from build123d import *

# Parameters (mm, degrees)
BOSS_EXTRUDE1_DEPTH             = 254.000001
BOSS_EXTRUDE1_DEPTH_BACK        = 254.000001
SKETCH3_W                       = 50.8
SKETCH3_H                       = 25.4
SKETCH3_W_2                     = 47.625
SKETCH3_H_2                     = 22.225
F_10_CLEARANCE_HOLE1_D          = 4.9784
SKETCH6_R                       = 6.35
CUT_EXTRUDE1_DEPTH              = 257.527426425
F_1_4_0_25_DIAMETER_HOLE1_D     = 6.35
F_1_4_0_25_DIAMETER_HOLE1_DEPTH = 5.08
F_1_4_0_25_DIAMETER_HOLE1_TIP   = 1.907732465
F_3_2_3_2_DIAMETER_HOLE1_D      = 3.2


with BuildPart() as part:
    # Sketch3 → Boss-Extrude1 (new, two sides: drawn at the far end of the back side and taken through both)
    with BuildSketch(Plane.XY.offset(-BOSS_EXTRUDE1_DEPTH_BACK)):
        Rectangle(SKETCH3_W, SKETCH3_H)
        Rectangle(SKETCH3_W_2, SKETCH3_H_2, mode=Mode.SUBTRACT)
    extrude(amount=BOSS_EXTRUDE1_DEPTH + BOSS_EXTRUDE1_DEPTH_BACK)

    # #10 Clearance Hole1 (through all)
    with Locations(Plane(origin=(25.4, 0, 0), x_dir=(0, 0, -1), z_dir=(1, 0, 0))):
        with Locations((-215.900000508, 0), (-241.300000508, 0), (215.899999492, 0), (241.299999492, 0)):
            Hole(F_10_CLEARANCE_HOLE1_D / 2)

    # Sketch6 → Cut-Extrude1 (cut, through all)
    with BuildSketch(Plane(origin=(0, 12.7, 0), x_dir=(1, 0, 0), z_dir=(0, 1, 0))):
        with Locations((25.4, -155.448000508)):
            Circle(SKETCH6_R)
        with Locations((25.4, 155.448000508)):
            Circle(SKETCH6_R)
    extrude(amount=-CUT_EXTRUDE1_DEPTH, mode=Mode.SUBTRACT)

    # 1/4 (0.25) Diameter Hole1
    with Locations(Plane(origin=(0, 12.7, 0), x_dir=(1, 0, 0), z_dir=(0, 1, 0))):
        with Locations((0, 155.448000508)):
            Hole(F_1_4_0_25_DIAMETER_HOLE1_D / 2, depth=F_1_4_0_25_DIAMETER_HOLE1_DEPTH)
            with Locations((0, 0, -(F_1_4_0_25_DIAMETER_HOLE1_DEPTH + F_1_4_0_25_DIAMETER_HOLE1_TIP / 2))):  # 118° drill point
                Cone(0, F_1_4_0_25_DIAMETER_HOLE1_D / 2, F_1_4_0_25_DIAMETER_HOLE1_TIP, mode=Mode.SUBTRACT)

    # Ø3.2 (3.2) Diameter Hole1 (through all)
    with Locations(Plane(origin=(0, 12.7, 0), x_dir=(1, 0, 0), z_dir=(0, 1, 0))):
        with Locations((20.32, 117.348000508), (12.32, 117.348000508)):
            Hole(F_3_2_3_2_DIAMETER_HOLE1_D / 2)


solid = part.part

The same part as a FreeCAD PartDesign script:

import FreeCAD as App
import Part
import Sketcher
Q = App.Units.Quantity

doc = App.newDocument("Part")
body = doc.addObject("PartDesign::Body", "Body")

sketch1 = body.newObject("Sketcher::SketchObject", "Sketch")
sketch1.AttachmentSupport = (doc.getObject("XY_Plane"), [""])
sketch1.MapMode = "FlatFace"
sketch1.addGeometry([
    Part.LineSegment(App.Vector(-25, 13, 0), App.Vector(-25, -13, 0)),
    Part.LineSegment(App.Vector(-25, -13, 0), App.Vector(25, -13, 0)),
    Part.LineSegment(App.Vector(25, -13, 0), App.Vector(25, 13, 0)),
    Part.LineSegment(App.Vector(25, 13, 0), App.Vector(-25, 13, 0)),
    Part.LineSegment(App.Vector(24, -11, 0), App.Vector(-24, -11, 0)),
    Part.LineSegment(App.Vector(-24, -11, 0), App.Vector(-24, 11, 0)),
    Part.LineSegment(App.Vector(-24, 11, 0), App.Vector(24, 11, 0)),
    Part.LineSegment(App.Vector(24, 11, 0), App.Vector(24, -11, 0)),
], False)
sketch1.addConstraint([
    Sketcher.Constraint("Coincident", 0, 2, 1, 1),
    Sketcher.Constraint("Coincident", 1, 2, 2, 1),
    Sketcher.Constraint("Coincident", 2, 2, 3, 1),
    Sketcher.Constraint("Coincident", 3, 2, 0, 1),
    Sketcher.Constraint("Coincident", 4, 2, 5, 1),
    Sketcher.Constraint("Coincident", 5, 2, 6, 1),
    Sketcher.Constraint("Coincident", 6, 2, 7, 1),
    Sketcher.Constraint("Coincident", 7, 2, 4, 1),
    Sketcher.Constraint("Vertical", 0),
    Sketcher.Constraint("Horizontal", 1),
    Sketcher.Constraint("Vertical", 2),
    Sketcher.Constraint("Horizontal", 3),
    Sketcher.Constraint("Horizontal", 4),
    Sketcher.Constraint("Vertical", 5),
    Sketcher.Constraint("Horizontal", 6),
    Sketcher.Constraint("Vertical", 7),
    Sketcher.Constraint("Symmetric", 0, 2, 2, 2, -1, 1),
    Sketcher.Constraint("Symmetric", 4, 2, 6, 2, -1, 1),
    Sketcher.Constraint("DistanceX", 1, 1, 1, 2, Q("2 in")),
    Sketcher.Constraint("DistanceY", 0, 2, 0, 1, Q("1 in")),
    Sketcher.Constraint("DistanceX", 4, 2, 4, 1, Q("1.875 in")),
    Sketcher.Constraint("DistanceY", 5, 1, 5, 2, Q("0.875 in")),
])
pad1 = body.newObject("PartDesign::Pad", "Pad")
pad1.Profile = sketch1
pad1.Type = "TwoLengths"
pad1.Length = Q("10 in")
pad1.Length2 = Q("10 in")

sketch2 = body.newObject("Sketcher::SketchObject", "Sketch001")
sketch2.AttachmentSupport = (doc.getObject("YZ_Plane"), [""])
sketch2.MapMode = "FlatFace"
sketch2.AttachmentOffset = App.Placement(App.Vector(0, 0, 1 * 25.4), App.Rotation())
sketch2.addGeometry([
    Part.Circle(App.Vector(0, 215.9, 0), App.Vector(0, 0, 1), 2.5),
    Part.Circle(App.Vector(0, 241.3, 0), App.Vector(0, 0, 1), 2.5),
    Part.Circle(App.Vector(0, -215.9, 0), App.Vector(0, 0, 1), 2.5),
    Part.Circle(App.Vector(0, -241.3, 0), App.Vector(0, 0, 1), 2.5),
], False)
sketch2.addConstraint([
    Sketcher.Constraint("Equal", 0, 1),
    Sketcher.Constraint("Equal", 1, 2),
    Sketcher.Constraint("Equal", 2, 3),
    Sketcher.Constraint("Symmetric", 0, 3, 2, 3, -1, 1),
    Sketcher.Constraint("Symmetric", 1, 3, 3, 3, -1, 1),
    Sketcher.Constraint("PointOnObject", 0, 3, -2),
    Sketcher.Constraint("PointOnObject", 1, 3, -2),
    Sketcher.Constraint("Diameter", 0, Q("0.196 in")),
    Sketcher.Constraint("DistanceY", 0, 3, 1, 3, Q("1 in")),
    Sketcher.Constraint("DistanceY", 2, 3, 0, 3, Q("17 in")),
])
doc.recompute()
hole = body.newObject("PartDesign::Hole", "Hole")
hole.Profile = sketch2
hole.ThreadType = "None"
hole.Diameter = Q("0.196 in")
hole.DepthType = "ThroughAll"

sketch3 = body.newObject("Sketcher::SketchObject", "Sketch002")
sketch3.AttachmentSupport = (doc.getObject("XZ_Plane"), [""])
sketch3.MapMode = "FlatFace"
sketch3.AttachmentOffset = App.Placement(App.Vector(0, 0, -0.5 * 25.4), App.Rotation())
sketch3.addGeometry([
    Part.Circle(App.Vector(25, 155, 0), App.Vector(0, 0, 1), 6),
    Part.Circle(App.Vector(25, -155, 0), App.Vector(0, 0, 1), 6),
], False)
sketch3.addConstraint([
    Sketcher.Constraint("Equal", 0, 1),
    Sketcher.Constraint("Symmetric", 0, 3, 1, 3, -1),
    Sketcher.Constraint("Diameter", 0, Q("0.5 in")),
    Sketcher.Constraint("DistanceX", -1, 1, 0, 3, Q("1 in")),
    Sketcher.Constraint("DistanceY", -1, 1, 0, 3, Q("6.12 in")),
])
pocket1 = body.newObject("PartDesign::Pocket", "Pocket")
pocket1.Profile = sketch3
pocket1.Type = "ThroughAll"
pocket1.Reversed = True

sketch4 = body.newObject("Sketcher::SketchObject", "Sketch003")
sketch4.AttachmentSupport = (doc.getObject("XZ_Plane"), [""])
sketch4.MapMode = "FlatFace"
sketch4.AttachmentOffset = App.Placement(App.Vector(0, 0, -0.5 * 25.4), App.Rotation())
sketch4.addGeometry(Part.Circle(App.Vector(0, -155.4, 0), App.Vector(0, 0, 1), 3.2), False)
sketch4.addConstraint([
    Sketcher.Constraint("PointOnObject", 0, 3, -2),
    Sketcher.Constraint("Diameter", 0, Q("0.25 in")),
    Sketcher.Constraint("DistanceY", 0, 3, -1, 1, Q("6.12 in")),
])
doc.recompute()
hole2 = body.newObject("PartDesign::Hole", "Hole001")
hole2.Profile = sketch4
hole2.ThreadType = "None"
hole2.Diameter = Q("0.25 in")
hole2.DepthType = "Dimension"
hole2.Depth = Q("0.2 in")
hole2.DrillPoint = "Angled"
hole2.DrillPointAngle = 118
hole2.Reversed = True

sketch5 = body.newObject("Sketcher::SketchObject", "Sketch004")
sketch5.AttachmentSupport = (doc.getObject("XZ_Plane"), [""])
sketch5.MapMode = "FlatFace"
sketch5.AttachmentOffset = App.Placement(App.Vector(0, 0, -0.5 * 25.4), App.Rotation())
sketch5.addGeometry([
    Part.Circle(App.Vector(20.3, -117.3, 0), App.Vector(0, 0, 1), 1.6),
    Part.Circle(App.Vector(12.3, -117.3, 0), App.Vector(0, 0, 1), 1.6),
], False)
sketch5.addConstraint([
    Sketcher.Constraint("Equal", 0, 1),
    Sketcher.Constraint("Horizontal", 0, 3, 1, 3),
    Sketcher.Constraint("DistanceX", -1, 1, 0, 3, Q("0.8 in")),
    Sketcher.Constraint("Diameter", 0, Q("3.2 mm")),
    Sketcher.Constraint("DistanceY", 0, 3, -1, 1, Q("4.62 in")),
    Sketcher.Constraint("DistanceX", -1, 1, 1, 3, Q("12.32 mm")),
])
doc.recompute()
hole3 = body.newObject("PartDesign::Hole", "Hole002")
hole3.Profile = sketch5
hole3.ThreadType = "None"
hole3.Diameter = 3.2
hole3.DepthType = "ThroughAll"
hole3.Reversed = True

doc.recompute()
